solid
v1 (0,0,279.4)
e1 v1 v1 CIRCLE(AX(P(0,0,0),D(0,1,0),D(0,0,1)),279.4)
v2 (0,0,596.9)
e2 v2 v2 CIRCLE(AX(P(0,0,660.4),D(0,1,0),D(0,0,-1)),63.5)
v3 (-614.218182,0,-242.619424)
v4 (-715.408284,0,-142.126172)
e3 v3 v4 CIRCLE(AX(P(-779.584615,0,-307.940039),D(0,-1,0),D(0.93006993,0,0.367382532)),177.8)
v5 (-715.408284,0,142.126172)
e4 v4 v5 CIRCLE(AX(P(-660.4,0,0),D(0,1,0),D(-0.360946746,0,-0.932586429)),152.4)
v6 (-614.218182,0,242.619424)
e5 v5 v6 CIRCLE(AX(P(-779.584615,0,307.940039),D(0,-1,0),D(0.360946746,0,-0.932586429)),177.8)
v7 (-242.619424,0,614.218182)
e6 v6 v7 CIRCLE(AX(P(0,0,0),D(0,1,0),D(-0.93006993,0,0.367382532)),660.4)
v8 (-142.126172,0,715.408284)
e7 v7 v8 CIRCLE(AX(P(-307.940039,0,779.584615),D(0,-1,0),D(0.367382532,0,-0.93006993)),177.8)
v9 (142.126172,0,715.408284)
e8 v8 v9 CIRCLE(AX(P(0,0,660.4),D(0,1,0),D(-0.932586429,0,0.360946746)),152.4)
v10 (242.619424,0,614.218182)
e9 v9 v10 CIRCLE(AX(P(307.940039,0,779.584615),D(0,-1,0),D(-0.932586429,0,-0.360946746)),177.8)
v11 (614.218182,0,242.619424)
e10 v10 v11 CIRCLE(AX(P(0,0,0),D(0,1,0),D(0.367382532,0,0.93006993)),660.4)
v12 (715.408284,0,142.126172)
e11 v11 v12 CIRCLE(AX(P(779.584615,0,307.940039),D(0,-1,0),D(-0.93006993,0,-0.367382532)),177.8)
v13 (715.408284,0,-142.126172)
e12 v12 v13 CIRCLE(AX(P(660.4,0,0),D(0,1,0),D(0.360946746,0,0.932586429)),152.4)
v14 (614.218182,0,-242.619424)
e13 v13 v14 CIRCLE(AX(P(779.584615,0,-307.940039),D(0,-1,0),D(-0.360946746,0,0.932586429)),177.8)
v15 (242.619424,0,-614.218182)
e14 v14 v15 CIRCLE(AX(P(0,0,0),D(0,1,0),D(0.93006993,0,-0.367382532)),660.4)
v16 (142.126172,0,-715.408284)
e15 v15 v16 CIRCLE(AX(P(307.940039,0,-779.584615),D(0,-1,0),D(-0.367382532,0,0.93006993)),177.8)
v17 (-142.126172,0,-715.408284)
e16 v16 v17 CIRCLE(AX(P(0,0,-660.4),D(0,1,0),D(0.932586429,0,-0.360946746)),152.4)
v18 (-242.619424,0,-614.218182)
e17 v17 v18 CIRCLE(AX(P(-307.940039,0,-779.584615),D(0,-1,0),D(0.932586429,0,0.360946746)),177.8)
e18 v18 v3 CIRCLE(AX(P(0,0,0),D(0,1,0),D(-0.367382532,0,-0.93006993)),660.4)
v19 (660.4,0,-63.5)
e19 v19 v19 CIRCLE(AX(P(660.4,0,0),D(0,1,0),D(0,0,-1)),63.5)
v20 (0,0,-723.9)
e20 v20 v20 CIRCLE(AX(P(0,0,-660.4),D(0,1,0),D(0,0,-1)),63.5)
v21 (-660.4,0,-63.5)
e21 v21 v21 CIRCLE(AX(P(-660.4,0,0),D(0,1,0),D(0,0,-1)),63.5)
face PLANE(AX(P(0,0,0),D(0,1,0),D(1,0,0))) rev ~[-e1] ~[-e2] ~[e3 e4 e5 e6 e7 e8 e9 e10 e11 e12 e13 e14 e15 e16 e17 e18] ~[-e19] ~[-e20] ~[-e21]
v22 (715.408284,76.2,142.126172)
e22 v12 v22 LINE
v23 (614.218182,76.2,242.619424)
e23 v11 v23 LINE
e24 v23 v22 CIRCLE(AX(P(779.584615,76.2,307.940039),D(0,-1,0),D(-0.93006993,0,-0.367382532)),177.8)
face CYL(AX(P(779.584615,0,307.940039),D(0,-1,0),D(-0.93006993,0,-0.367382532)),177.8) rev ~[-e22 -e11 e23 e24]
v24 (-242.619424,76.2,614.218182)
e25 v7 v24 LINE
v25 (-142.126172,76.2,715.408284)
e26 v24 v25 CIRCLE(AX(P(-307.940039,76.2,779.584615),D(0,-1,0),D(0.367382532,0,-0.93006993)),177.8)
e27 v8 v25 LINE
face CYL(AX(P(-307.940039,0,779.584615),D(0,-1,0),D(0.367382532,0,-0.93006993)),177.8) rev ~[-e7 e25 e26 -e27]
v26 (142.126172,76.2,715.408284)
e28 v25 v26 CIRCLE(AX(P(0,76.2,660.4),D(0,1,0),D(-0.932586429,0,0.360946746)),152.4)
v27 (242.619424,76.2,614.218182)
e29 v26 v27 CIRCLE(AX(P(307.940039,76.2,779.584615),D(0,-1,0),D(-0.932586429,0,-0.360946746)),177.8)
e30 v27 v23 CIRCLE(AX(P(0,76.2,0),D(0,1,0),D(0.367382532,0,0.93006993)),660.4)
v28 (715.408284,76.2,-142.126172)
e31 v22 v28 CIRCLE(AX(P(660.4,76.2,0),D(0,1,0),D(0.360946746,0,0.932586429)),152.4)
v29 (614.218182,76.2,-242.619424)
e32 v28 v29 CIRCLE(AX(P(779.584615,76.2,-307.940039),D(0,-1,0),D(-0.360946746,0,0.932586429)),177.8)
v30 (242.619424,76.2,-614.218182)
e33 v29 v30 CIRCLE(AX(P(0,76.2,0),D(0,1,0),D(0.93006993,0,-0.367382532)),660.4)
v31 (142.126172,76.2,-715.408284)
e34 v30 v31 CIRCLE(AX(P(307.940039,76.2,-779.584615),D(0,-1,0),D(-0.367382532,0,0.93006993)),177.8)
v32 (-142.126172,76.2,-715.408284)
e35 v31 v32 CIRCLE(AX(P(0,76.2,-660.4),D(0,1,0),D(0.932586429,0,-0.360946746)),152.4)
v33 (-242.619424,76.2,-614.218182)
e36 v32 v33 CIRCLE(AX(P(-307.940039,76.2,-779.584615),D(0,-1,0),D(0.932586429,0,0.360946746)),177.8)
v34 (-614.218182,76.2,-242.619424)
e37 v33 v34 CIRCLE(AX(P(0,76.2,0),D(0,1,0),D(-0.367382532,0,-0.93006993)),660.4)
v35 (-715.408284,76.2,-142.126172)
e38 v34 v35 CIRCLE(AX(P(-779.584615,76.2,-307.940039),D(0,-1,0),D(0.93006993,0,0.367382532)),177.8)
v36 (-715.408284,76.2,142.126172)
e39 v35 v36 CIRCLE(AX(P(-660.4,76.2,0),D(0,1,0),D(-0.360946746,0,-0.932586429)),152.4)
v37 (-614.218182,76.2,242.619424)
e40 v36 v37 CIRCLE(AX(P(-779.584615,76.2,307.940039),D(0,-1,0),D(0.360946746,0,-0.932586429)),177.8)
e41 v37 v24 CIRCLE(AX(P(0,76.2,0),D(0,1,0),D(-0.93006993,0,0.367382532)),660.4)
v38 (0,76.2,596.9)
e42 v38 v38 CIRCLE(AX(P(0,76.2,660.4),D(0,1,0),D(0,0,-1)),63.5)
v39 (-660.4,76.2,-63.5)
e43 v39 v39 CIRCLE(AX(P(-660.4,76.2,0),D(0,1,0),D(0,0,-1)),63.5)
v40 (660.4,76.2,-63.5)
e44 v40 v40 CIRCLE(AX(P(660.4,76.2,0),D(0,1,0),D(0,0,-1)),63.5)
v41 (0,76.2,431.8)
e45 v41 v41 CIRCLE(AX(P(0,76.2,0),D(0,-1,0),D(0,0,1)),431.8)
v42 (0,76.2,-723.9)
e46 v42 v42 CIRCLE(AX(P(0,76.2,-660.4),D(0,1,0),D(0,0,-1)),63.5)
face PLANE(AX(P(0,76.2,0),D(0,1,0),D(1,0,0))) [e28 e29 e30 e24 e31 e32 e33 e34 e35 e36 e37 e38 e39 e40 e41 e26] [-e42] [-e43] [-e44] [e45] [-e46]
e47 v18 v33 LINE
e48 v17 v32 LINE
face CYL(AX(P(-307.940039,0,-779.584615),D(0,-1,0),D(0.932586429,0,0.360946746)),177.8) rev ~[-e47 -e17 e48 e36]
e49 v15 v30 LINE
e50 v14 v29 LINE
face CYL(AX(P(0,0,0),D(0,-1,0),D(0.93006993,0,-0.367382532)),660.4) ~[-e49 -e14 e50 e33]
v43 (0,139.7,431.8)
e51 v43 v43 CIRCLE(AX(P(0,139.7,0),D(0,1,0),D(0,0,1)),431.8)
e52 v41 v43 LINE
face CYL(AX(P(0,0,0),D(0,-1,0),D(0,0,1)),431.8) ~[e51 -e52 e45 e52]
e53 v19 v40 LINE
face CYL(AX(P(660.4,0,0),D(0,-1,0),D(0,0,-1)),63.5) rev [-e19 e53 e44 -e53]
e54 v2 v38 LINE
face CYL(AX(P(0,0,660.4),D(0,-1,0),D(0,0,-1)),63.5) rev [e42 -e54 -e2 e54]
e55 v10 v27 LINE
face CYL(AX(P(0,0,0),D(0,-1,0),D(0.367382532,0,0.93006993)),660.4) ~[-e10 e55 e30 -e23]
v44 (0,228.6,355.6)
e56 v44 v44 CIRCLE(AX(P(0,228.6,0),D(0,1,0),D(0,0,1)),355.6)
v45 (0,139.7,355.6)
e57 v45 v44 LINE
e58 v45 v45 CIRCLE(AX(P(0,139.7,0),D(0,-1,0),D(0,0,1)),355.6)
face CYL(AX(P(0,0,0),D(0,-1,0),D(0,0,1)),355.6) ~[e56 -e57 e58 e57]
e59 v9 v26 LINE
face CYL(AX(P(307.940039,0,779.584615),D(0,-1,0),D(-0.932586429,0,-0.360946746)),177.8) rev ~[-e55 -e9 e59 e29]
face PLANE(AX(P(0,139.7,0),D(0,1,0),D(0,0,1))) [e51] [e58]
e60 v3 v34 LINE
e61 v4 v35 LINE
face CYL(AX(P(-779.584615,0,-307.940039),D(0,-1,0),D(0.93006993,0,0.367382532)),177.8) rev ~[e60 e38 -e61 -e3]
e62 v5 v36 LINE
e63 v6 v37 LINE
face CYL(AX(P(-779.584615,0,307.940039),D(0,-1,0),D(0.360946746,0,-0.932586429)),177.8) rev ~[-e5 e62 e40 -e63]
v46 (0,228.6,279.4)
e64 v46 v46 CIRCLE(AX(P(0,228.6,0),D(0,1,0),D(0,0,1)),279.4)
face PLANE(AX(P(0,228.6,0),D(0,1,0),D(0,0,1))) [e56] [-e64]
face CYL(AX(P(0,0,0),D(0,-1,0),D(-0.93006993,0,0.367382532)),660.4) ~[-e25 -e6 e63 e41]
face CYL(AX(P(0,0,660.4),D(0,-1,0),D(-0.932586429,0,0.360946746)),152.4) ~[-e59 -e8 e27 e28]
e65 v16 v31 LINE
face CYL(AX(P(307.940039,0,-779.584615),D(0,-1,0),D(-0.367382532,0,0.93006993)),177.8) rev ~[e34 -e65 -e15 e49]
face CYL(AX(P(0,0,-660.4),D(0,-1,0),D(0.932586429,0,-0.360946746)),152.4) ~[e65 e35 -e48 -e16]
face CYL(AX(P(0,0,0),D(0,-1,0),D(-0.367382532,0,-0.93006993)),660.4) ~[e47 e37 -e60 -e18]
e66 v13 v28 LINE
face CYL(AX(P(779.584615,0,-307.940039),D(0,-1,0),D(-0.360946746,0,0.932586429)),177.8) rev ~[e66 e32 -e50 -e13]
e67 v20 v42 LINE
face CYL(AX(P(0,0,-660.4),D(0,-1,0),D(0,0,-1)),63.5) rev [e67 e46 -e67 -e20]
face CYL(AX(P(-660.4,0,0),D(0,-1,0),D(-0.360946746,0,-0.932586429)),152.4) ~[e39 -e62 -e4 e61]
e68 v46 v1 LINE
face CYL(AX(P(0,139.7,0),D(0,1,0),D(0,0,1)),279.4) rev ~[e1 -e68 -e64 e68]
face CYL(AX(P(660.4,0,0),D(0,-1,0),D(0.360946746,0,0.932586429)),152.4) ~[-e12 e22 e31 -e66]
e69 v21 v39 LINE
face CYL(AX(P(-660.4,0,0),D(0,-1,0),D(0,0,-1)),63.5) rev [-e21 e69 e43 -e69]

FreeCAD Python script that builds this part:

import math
import FreeCAD as App
import Part
import Sketcher

V = App.Vector
Q = App.Units.Quantity

doc = App.newDocument("Part")
params = doc.addObject("Spreadsheet::Sheet", "Params")
for row, (alias, value) in enumerate([
    ("sketch1_diameter", "28 in"),
    ("sketch1_diameter2", "22 in"),
    ("pad1_length", "9 in"),
    ("sketch2_diameter", "34 in"),
    ("pad2_length", "5.5 in"),
    ("sketch3_diameter", "5 in"),
    ("sketch3_radius", "6 in"),
    ("sketch3_radius2", "7 in"),
    ("sketch3_radius3", "26 in"),
    ("pad3_length", "3 in"),
    ("sketch4_diameter", "22 in"),
], start=1):
    params.set(f"A{row}", alias)
    params.set(f"B{row}", "=" + value)
    params.setAlias(f"B{row}", alias)

body = doc.addObject("PartDesign::Body", "Body")

# Sketch on XZ plane
sketch1 = doc.addObject("Sketcher::SketchObject", "Sketch")
body.addObject(sketch1)
sketch1.AttachmentSupport = (doc.XZ_Plane, [""])
sketch1.MapMode = "FlatFace"
sketch1.addGeometry([
    Part.Circle(V(0, 0, 0), V(0, 0, 1), 355.6),
    Part.Circle(V(0, 0, 0), V(0, 0, 1), 279.4),
], False)
sketch1.addConstraint([
    Sketcher.Constraint("Coincident", 0, 3, -1, 1),
    Sketcher.Constraint("Coincident", 1, 3, -1, 1),
    Sketcher.Constraint("Diameter", 0, Q("28 in")),
    Sketcher.Constraint("Diameter", 1, Q("22 in")),
])
sketch1.setExpression("Constraints[2]", "Params.sketch1_diameter")
sketch1.setExpression("Constraints[3]", "Params.sketch1_diameter2")
pad1 = doc.addObject("PartDesign::Pad", "Pad")
body.addObject(pad1)
pad1.Profile = sketch1
pad1.setExpression("Length", "Params.pad1_length")
pad1.Reversed = True

# Sketch on XZ plane
sketch2 = doc.addObject("Sketcher::SketchObject", "Sketch001")
body.addObject(sketch2)
sketch2.AttachmentSupport = (doc.XZ_Plane, [""])
sketch2.MapMode = "FlatFace"
sketch2.addGeometry(Part.Circle(V(0, 0, 0), V(0, 0, 1), 431.8), False)
sketch2.addConstraint([
    Sketcher.Constraint("Coincident", 0, 3, -1, 1),
    Sketcher.Constraint("Diameter", 0, Q("34 in")),
])
sketch2.setExpression("Constraints[1]", "Params.sketch2_diameter")
pad2 = doc.addObject("PartDesign::Pad", "Pad001")
body.addObject(pad2)
pad2.Profile = sketch2
pad2.setExpression("Length", "Params.pad2_length")
pad2.Reversed = True

# Sketch on XZ plane
sketch3 = doc.addObject("Sketcher::SketchObject", "Sketch002")
body.addObject(sketch3)
sketch3.AttachmentSupport = (doc.XZ_Plane, [""])
sketch3.MapMode = "FlatFace"
sketch3.addGeometry([
    Part.ArcOfCircle(Part.Circle(V(0, 660.4, 0), V(0, 0, 1), 152.4), math.radians(21.15835), math.radians(158.84165)),  # 0
    Part.ArcOfCircle(Part.Circle(V(307.940039, 779.584615, 0), V(0, 0, 1), 177.8), math.radians(-158.84165), math.radians(-111.554282)),  # 1
    Part.ArcOfCircle(Part.Circle(V(0, 0, 0), V(0, 0, 1), 660.4), math.radians(21.554282), math.radians(68.445718)),  # 2
    Part.ArcOfCircle(Part.Circle(V(779.584615, 307.940039, 0), V(0, 0, 1), 177.8), math.radians(-158.445718), math.radians(-111.15835)),  # 3
    Part.ArcOfCircle(Part.Circle(V(660.4, 0, 0), V(0, 0, 1), 152.4), math.radians(-68.84165), math.radians(68.84165)),  # 4
    Part.ArcOfCircle(Part.Circle(V(779.584615, -307.940039, 0), V(0, 0, 1), 177.8), math.radians(111.15835), math.radians(158.445718)),  # 5
    Part.ArcOfCircle(Part.Circle(V(0, 0, 0), V(0, 0, 1), 660.4), math.radians(-68.445718), math.radians(-21.554282)),  # 6
    Part.ArcOfCircle(Part.Circle(V(307.940039, -779.584615, 0), V(0, 0, 1), 177.8), math.radians(111.554282), math.radians(158.84165)),  # 7
    Part.ArcOfCircle(Part.Circle(V(0, -660.4, 0), V(0, 0, 1), 152.4), math.radians(-158.84165), math.radians(-21.15835)),  # 8
    Part.ArcOfCircle(Part.Circle(V(-307.940039, -779.584615, 0), V(0, 0, 1), 177.8), math.radians(21.15835), math.radians(68.445718)),  # 9
    Part.ArcOfCircle(Part.Circle(V(0, 0, 0), V(0, 0, 1), 660.4), math.radians(-158.445718), math.radians(-111.554282)),  # 10
    Part.ArcOfCircle(Part.Circle(V(-779.584615, -307.940039, 0), V(0, 0, 1), 177.8), math.radians(21.554282), math.radians(68.84165)),  # 11
    Part.ArcOfCircle(Part.Circle(V(-660.4, 0, 0), V(0, 0, 1), 152.4), math.radians(111.15835), math.radians(248.84165)),  # 12
    Part.ArcOfCircle(Part.Circle(V(-779.584615, 307.940039, 0), V(0, 0, 1), 177.8), math.radians(-68.84165), math.radians(-21.554282)),  # 13
    Part.ArcOfCircle(Part.Circle(V(0, 0, 0), V(0, 0, 1), 660.4), math.radians(111.554282), math.radians(158.445718)),  # 14
    Part.ArcOfCircle(Part.Circle(V(-307.940039, 779.584615, 0), V(0, 0, 1), 177.8), math.radians(-68.445718), math.radians(-21.15835)),  # 15
    Part.Circle(V(0, 660.4, 0), V(0, 0, 1), 63.5),  # 16
    Part.Circle(V(-660.4, 0, 0), V(0, 0, 1), 63.5),  # 17
    Part.Circle(V(660.4, 0, 0), V(0, 0, 1), 63.5),  # 18
    Part.Circle(V(0, -660.4, 0), V(0, 0, 1), 63.5),  # 19
], False)
sketch3.addConstraint([
    Sketcher.Constraint("Tangent", 0, 1, 1, 1),
    Sketcher.Constraint("Tangent", 1, 2, 2, 2),
    Sketcher.Constraint("Tangent", 2, 1, 3, 1),
    Sketcher.Constraint("Tangent", 3, 2, 4, 2),
    Sketcher.Constraint("Tangent", 4, 1, 5, 1),
    Sketcher.Constraint("Tangent", 5, 2, 6, 2),
    Sketcher.Constraint("Tangent", 6, 1, 7, 1),
    Sketcher.Constraint("Tangent", 7, 2, 8, 2),
    Sketcher.Constraint("Tangent", 8, 1, 9, 1),
    Sketcher.Constraint("Tangent", 9, 2, 10, 2),
    Sketcher.Constraint("Tangent", 10, 1, 11, 1),
    Sketcher.Constraint("Tangent", 11, 2, 12, 2),
    Sketcher.Constraint("Tangent", 12, 1, 13, 1),
    Sketcher.Constraint("Tangent", 13, 2, 14, 2),
    Sketcher.Constraint("Tangent", 14, 1, 15, 1),
    Sketcher.Constraint("Tangent", 15, 2, 0, 2),
    Sketcher.Constraint("Coincident", 2, 3, -1, 1),
    Sketcher.Constraint("Coincident", 6, 3, -1, 1),
    Sketcher.Constraint("Coincident", 10, 3, -1, 1),
    Sketcher.Constraint("Coincident", 14, 3, -1, 1),
    Sketcher.Constraint("Coincident", 16, 3, 0, 3),
    Sketcher.Constraint("Coincident", 17, 3, 12, 3),
    Sketcher.Constraint("Coincident", 18, 3, 4, 3),
    Sketcher.Constraint("Coincident", 19, 3, 8, 3),
    Sketcher.Constraint("Equal", 1, 3),
    Sketcher.Constraint("Equal", 0, 4),
    Sketcher.Constraint("Equal", 3, 5),
    Sketcher.Constraint("Equal", 2, 6),
    Sketcher.Constraint("Equal", 5, 7),
    Sketcher.Constraint("Equal", 4, 8),
    Sketcher.Constraint("Equal", 7, 9),
    Sketcher.Constraint("Equal", 6, 10),
    Sketcher.Constraint("Equal", 9, 11),
    Sketcher.Constraint("Equal", 8, 12),
    Sketcher.Constraint("Equal", 11, 13),
    Sketcher.Constraint("Equal", 10, 14),
    Sketcher.Constraint("Equal", 13, 15),
    Sketcher.Constraint("Equal", 16, 17),
    Sketcher.Constraint("Equal", 17, 18),
    Sketcher.Constraint("Equal", 18, 19),
    Sketcher.Constraint("Symmetric", 0, 3, 8, 3, -1, 1),
    Sketcher.Constraint("Symmetric", 4, 3, 12, 3, -1, 1),
    Sketcher.Constraint("PointOnObject", 0, 3, -2),
    Sketcher.Constraint("PointOnObject", 4, 3, -1),
    Sketcher.Constraint("Diameter", 16, Q("5 in")),
    Sketcher.Constraint("Radius", 0, Q("6 in")),
    Sketcher.Constraint("Radius", 1, Q("7 in")),
    Sketcher.Constraint("Radius", 2, Q("26 in")),
    Sketcher.Constraint("DistanceY", -1, 1, 0, 3, Q("26 in")),
    Sketcher.Constraint("DistanceX", -1, 1, 4, 3, Q("26 in")),
])
sketch3.setExpression("Constraints[44]", "Params.sketch3_diameter")
sketch3.setExpression("Constraints[45]", "Params.sketch3_radius")
sketch3.setExpression("Constraints[46]", "Params.sketch3_radius2")
sketch3.setExpression("Constraints[47]", "Params.sketch3_radius3")
pad3 = doc.addObject("PartDesign::Pad", "Pad002")
body.addObject(pad3)
pad3.Profile = sketch3
pad3.setExpression("Length", "Params.pad3_length")
pad3.Reversed = True

# Sketch on XZ plane
sketch4 = doc.addObject("Sketcher::SketchObject", "Sketch003")
body.addObject(sketch4)
sketch4.AttachmentSupport = (doc.XZ_Plane, [""])
sketch4.MapMode = "FlatFace"
sketch4.AttachmentOffset = App.Placement(V(0, 0, -5.5 * 25.4), App.Rotation())
sketch4.addGeometry(Part.Circle(V(0, 0, 0), V(0, 0, 1), 279.4), False)
sketch4.addConstraint([
    Sketcher.Constraint("Coincident", 0, 3, -1, 1),
    Sketcher.Constraint("Diameter", 0, Q("22 in")),
])
sketch4.setExpression("Constraints[1]", "Params.sketch4_diameter")
pocket1 = doc.addObject("PartDesign::Pocket", "Pocket")
body.addObject(pocket1)
pocket1.Profile = sketch4
pocket1.Type = "UpToFirst"
pocket1.Reversed = True

doc.recompute()
